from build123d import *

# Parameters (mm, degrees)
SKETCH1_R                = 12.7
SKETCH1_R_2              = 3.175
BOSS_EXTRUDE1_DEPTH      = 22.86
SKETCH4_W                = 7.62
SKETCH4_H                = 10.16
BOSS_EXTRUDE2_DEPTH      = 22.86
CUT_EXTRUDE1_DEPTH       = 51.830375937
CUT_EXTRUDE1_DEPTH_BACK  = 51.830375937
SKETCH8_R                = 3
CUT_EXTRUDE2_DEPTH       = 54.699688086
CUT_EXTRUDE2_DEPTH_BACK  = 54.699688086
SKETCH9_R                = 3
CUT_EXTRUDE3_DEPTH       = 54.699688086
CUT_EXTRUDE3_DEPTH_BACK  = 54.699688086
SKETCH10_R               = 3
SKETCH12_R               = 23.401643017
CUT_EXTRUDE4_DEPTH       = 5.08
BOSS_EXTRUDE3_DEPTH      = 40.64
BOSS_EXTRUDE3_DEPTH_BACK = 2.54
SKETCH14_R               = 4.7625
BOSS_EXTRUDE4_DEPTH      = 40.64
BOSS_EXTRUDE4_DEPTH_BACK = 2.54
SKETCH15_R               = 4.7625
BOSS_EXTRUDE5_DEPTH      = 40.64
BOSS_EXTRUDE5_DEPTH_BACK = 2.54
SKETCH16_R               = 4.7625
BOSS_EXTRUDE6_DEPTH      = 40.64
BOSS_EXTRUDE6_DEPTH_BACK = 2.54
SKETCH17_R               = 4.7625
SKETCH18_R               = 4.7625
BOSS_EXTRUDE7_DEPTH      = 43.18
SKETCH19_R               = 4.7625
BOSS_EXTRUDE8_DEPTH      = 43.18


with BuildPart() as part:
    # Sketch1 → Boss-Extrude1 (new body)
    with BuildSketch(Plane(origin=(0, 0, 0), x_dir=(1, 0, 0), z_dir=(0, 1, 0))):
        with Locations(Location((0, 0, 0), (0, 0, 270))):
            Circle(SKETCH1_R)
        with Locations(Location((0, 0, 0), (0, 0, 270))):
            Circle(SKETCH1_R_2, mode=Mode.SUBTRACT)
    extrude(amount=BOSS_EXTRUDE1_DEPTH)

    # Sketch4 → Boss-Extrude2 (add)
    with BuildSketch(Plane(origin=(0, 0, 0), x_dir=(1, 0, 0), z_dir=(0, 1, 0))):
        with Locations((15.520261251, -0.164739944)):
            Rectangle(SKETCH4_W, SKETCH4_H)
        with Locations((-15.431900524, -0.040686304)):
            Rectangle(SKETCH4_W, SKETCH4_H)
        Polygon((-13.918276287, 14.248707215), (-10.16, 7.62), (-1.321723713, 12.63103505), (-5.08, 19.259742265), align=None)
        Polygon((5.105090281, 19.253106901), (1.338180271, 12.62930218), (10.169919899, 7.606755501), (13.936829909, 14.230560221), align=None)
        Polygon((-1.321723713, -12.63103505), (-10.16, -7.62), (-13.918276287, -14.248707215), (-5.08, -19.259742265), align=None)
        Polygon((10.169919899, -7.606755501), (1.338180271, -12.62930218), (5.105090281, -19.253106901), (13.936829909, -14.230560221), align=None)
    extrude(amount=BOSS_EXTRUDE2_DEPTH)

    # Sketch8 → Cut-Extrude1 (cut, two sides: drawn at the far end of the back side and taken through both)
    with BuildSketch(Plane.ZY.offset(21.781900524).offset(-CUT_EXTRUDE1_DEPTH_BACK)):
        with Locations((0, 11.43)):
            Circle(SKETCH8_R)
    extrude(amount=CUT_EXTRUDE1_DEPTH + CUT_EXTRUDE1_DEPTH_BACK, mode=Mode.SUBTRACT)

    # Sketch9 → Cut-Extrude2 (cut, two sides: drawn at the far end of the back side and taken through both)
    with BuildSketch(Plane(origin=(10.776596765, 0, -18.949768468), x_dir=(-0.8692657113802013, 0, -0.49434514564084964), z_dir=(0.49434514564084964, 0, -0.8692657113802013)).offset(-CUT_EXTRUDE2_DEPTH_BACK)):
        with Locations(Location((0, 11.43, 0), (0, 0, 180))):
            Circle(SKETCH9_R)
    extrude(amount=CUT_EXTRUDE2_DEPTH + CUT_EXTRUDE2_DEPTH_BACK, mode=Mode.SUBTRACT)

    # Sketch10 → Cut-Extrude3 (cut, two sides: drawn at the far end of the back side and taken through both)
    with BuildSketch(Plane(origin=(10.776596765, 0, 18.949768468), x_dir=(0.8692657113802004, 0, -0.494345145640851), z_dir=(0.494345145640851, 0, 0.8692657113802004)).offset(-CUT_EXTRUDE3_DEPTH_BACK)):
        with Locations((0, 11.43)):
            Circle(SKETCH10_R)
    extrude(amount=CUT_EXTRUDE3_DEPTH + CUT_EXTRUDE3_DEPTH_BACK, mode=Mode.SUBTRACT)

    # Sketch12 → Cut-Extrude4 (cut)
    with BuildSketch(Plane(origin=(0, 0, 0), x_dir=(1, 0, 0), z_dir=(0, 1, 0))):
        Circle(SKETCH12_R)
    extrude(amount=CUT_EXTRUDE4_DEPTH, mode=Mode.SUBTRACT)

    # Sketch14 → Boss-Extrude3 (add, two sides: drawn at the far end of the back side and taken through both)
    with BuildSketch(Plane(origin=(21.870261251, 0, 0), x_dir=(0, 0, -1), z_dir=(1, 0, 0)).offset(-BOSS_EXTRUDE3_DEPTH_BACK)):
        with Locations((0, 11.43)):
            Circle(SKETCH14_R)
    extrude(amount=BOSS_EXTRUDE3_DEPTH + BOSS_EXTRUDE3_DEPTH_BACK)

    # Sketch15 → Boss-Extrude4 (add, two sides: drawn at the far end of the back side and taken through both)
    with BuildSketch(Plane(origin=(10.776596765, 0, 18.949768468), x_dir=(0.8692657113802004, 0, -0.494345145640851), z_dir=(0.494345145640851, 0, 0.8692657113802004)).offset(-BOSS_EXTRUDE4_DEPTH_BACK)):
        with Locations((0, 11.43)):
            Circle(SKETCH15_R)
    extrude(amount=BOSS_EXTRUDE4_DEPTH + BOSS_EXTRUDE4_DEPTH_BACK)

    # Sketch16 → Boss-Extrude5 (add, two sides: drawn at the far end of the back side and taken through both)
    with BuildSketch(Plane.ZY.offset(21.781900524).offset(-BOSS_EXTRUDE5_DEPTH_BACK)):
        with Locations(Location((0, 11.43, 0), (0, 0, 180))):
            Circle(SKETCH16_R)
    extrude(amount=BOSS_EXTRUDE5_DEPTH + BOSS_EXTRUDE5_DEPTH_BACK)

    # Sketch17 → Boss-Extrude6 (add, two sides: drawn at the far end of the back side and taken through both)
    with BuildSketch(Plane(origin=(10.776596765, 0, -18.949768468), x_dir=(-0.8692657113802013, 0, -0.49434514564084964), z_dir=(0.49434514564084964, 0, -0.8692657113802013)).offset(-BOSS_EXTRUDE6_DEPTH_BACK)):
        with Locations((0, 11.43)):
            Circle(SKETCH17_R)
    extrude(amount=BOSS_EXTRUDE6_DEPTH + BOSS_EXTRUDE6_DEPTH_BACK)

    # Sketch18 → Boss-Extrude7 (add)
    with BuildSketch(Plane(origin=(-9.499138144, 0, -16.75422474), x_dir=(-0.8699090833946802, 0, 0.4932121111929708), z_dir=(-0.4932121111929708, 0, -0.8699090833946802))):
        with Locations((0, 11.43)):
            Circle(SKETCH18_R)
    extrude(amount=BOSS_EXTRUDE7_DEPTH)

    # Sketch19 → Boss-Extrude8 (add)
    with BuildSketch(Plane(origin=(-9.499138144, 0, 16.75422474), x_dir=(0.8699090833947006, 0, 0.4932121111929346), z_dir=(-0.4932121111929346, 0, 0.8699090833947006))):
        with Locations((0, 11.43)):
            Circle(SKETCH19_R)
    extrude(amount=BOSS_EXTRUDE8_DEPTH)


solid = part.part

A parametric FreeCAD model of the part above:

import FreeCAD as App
import Part
import Sketcher
from FreeCAD import Vector
Q = App.Units.Quantity


def add_polygon(sketch, points):
    """Adds a closed chain of lines whose ends are joined by coincident constraints."""
    first, n = sketch.GeometryCount, len(points)
    for a, b in zip(points, points[1:] + points[:1]):
        sketch.addGeometry(Part.LineSegment(App.Vector(*a, 0), App.Vector(*b, 0)), False)
    for i in range(n):
        sketch.addConstraint(Sketcher.Constraint("Coincident", first + i, 2, first + (i + 1) % n, 1))

doc = App.newDocument("Part")
body = doc.addObject("PartDesign::Body", "Body")

# Sketch on XZ plane
sketch1 = body.newObject("Sketcher::SketchObject", "Sketch")
sketch1.AttachmentSupport = (doc.getObject("XZ_Plane"), [""])
sketch1.MapMode = "FlatFace"
sketch1.addGeometry(Part.Circle(Vector(0, 0, 0), Vector(0, 0, 1), 12.7), False)
sketch1.addGeometry(Part.Circle(Vector(0, 0, 0), Vector(0, 0, 1), 3.2), False)
sketch1.addConstraint(Sketcher.Constraint("Coincident", 0, 3, -1, 1))
sketch1.addConstraint(Sketcher.Constraint("Coincident", 1, 3, -1, 1))
sketch1.addConstraint(Sketcher.Constraint("Diameter", 0, Q("1 in")))
sketch1.addConstraint(Sketcher.Constraint("Diameter", 1, Q("0.25 in")))
pad1 = body.newObject("PartDesign::Pad", "Pad")
pad1.Profile = sketch1
pad1.Length = Q("0.9 in")
pad1.Reversed = True

# Sketch on XZ plane
sketch2 = body.newObject("Sketcher::SketchObject", "Sketch001")
sketch2.AttachmentSupport = (doc.getObject("XZ_Plane"), [""])
sketch2.MapMode = "FlatFace"
add_polygon(sketch2, [(12, -5), (12, 5), (19, 5), (19, -5)])  # lines 0-3
add_polygon(sketch2, [(-19, -5), (-19, 5), (-12, 5), (-12, -5)])  # lines 4-7
add_polygon(sketch2, [(-14, -14), (-10, -8), (-1, -13), (-5, -19)])  # lines 8-11
add_polygon(sketch2, [(5, -19), (1, -13), (10, -8), (14, -14)])  # lines 12-15
add_polygon(sketch2, [(-1, 13), (-10, 8), (-14, 14), (-5, 19)])  # lines 16-19
add_polygon(sketch2, [(10, 8), (1, 13), (5, 19), (14, 14)])  # lines 20-23
sketch2.addConstraint(Sketcher.Constraint("Vertical", 0))
sketch2.addConstraint(Sketcher.Constraint("Horizontal", 1))
sketch2.addConstraint(Sketcher.Constraint("Vertical", 2))
sketch2.addConstraint(Sketcher.Constraint("Horizontal", 3))
sketch2.addConstraint(Sketcher.Constraint("Vertical", 4))
sketch2.addConstraint(Sketcher.Constraint("Horizontal", 5))
sketch2.addConstraint(Sketcher.Constraint("Vertical", 6))
sketch2.addConstraint(Sketcher.Constraint("Horizontal", 7))
sketch2.addConstraint(Sketcher.Constraint("Symmetric", 8, 2, 16, 2, -1))
sketch2.addConstraint(Sketcher.Constraint("Symmetric", 11, 2, 17, 2, -1))
sketch2.addConstraint(Sketcher.Constraint("Symmetric", 10, 2, 18, 2, -1))
sketch2.addConstraint(Sketcher.Constraint("Symmetric", 9, 2, 19, 2, -1))
sketch2.addConstraint(Sketcher.Constraint("Symmetric", 12, 2, 20, 2, -1))
sketch2.addConstraint(Sketcher.Constraint("Symmetric", 15, 2, 21, 2, -1))
sketch2.addConstraint(Sketcher.Constraint("Symmetric", 14, 2, 22, 2, -1))
sketch2.addConstraint(Sketcher.Constraint("Symmetric", 13, 2, 23, 2, -1))
sketch2.addConstraint(Sketcher.Constraint("Perpendicular", 8, 9))
sketch2.addConstraint(Sketcher.Constraint("Perpendicular", 9, 10))
sketch2.addConstraint(Sketcher.Constraint("Perpendicular", 10, 11))
sketch2.addConstraint(Sketcher.Constraint("Perpendicular", 12, 13))
sketch2.addConstraint(Sketcher.Constraint("Perpendicular", 13, 14))
sketch2.addConstraint(Sketcher.Constraint("Perpendicular", 14, 15))
sketch2.addConstraint(Sketcher.Constraint("Equal", 3, 5))
sketch2.addConstraint(Sketcher.Constraint("Equal", 2, 4))
sketch2.addConstraint(Sketcher.Constraint("Equal", 10, 12))
sketch2.addConstraint(Sketcher.Constraint("Equal", 11, 13))
sketch2.addConstraint(Sketcher.Constraint("DistanceX", 1, 1, 1, 2, Q("0.3 in")))
sketch2.addConstraint(Sketcher.Constraint("DistanceY", 0, 1, 0, 2, Q("0.4 in")))
sketch2.addConstraint(Sketcher.Constraint("Distance", 8, Q("0.3 in")))
sketch2.addConstraint(Sketcher.Constraint("Distance", 9, Q("0.4 in")))
sketch2.addConstraint(Sketcher.Constraint("DistanceX", 8, 2, -1, 1, Q("0.4 in")))
sketch2.addConstraint(Sketcher.Constraint("DistanceY", 8, 2, -1, 1, Q("0.3 in")))
sketch2.addConstraint(Sketcher.Constraint("DistanceX", 10, 2, -1, 1, Q("0.2 in")))
sketch2.addConstraint(Sketcher.Constraint("DistanceX", 4, 2, -1, 1, Q("19.241901 mm")))
sketch2.addConstraint(Sketcher.Constraint("DistanceY", 14, 2, 3, 2, Q("9.3153 mm")))
sketch2.addConstraint(Sketcher.Constraint("DistanceX", -1, 1, 0, 2, Q("11.710261 mm")))
sketch2.addConstraint(Sketcher.Constraint("DistanceY", -1, 1, 0, 2, Q("5.24474 mm")))
sketch2.addConstraint(Sketcher.Constraint("DistanceX", -1, 1, 12, 2, Q("1.33818 mm")))
sketch2.addConstraint(Sketcher.Constraint("DistanceX", -1, 1, 13, 2, Q("10.16992 mm")))
sketch2.addConstraint(Sketcher.Constraint("DistanceY", 9, 2, 6, 2, Q("7.591721 mm")))
pad2 = body.newObject("PartDesign::Pad", "Pad001")
pad2.Profile = sketch2
pad2.Length = Q("0.9 in")
pad2.Reversed = True

# Sketch on YZ plane
sketch3 = body.newObject("Sketcher::SketchObject", "Sketch002")
sketch3.AttachmentSupport = (doc.getObject("YZ_Plane"), [""])
sketch3.MapMode = "FlatFace"
sketch3.AttachmentOffset = App.Placement(Vector(0, 0, -21.781901), App.Rotation())
sketch3.addGeometry(Part.Circle(Vector(11.4, 0, 0), Vector(0, 0, 1), 3), False)
sketch3.addConstraint(Sketcher.Constraint("PointOnObject", 0, 3, -1))
sketch3.addConstraint(Sketcher.Constraint("Diameter", 0, Q("6 mm")))
sketch3.addConstraint(Sketcher.Constraint("DistanceX", -1, 1, 0, 3, Q("0.45 in")))
pocket1 = body.newObject("PartDesign::Pocket", "Pocket")
pocket1.Profile = sketch3
pocket1.Type = "ThroughAll"
pocket1.Midplane = True

# Sketch on an angled plane
sketch4 = body.newObject("Sketcher::SketchObject", "Sketch003")
sketch4.Placement = App.Placement(Vector(10.776597, 0, -18.949768), App.Rotation(Vector(-0.869265711, 0, -0.494345146), Vector(0, 1, 0), Vector(0.494345146, 0, -0.869265711), "ZXY"))
sketch4.addGeometry(Part.Circle(Vector(0, 11.4, 0), Vector(0, 0, 1), 3), False)
sketch4.addConstraint(Sketcher.Constraint("PointOnObject", 0, 3, -2))
sketch4.addConstraint(Sketcher.Constraint("Diameter", 0, Q("6 mm")))
sketch4.addConstraint(Sketcher.Constraint("DistanceY", -1, 1, 0, 3, Q("0.45 in")))
pocket2 = body.newObject("PartDesign::Pocket", "Pocket001")
pocket2.Profile = sketch4
pocket2.Type = "ThroughAll"
pocket2.Midplane = True

# Sketch on an angled plane
sketch5 = body.newObject("Sketcher::SketchObject", "Sketch004")
sketch5.Placement = App.Placement(Vector(10.776597, 0, 18.949768), App.Rotation(Vector(0.869265711, 0, -0.494345146), Vector(0, 1, 0), Vector(0.494345146, 0, 0.869265711), "ZXY"))
sketch5.addGeometry(Part.Circle(Vector(0, 11.4, 0), Vector(0, 0, 1), 3), False)
sketch5.addConstraint(Sketcher.Constraint("PointOnObject", 0, 3, -2))
sketch5.addConstraint(Sketcher.Constraint("Diameter", 0, Q("6 mm")))
sketch5.addConstraint(Sketcher.Constraint("DistanceY", -1, 1, 0, 3, Q("0.45 in")))
pocket3 = body.newObject("PartDesign::Pocket", "Pocket002")
pocket3.Profile = sketch5
pocket3.Type = "ThroughAll"
pocket3.Midplane = True

# Sketch on XZ plane
sketch6 = body.newObject("Sketcher::SketchObject", "Sketch005")
sketch6.AttachmentSupport = (doc.getObject("XZ_Plane"), [""])
sketch6.MapMode = "FlatFace"
sketch6.addGeometry(Part.Circle(Vector(0, 0, 0), Vector(0, 0, 1), 23), False)
sketch6.addConstraint(Sketcher.Constraint("Coincident", 0, 3, -1, 1))
sketch6.addConstraint(Sketcher.Constraint("Diameter", 0, Q("46.803286 mm")))
pocket4 = body.newObject("PartDesign::Pocket", "Pocket003")
pocket4.Profile = sketch6
pocket4.Length = Q("0.2 in")

# Sketch on YZ plane
sketch7 = body.newObject("Sketcher::SketchObject", "Sketch006")
sketch7.AttachmentSupport = (doc.getObject("YZ_Plane"), [""])
sketch7.MapMode = "FlatFace"
sketch7.AttachmentOffset = App.Placement(Vector(0, 0, 21.870261), App.Rotation())
sketch7.addGeometry(Part.Circle(Vector(11.4, 0, 0), Vector(0, 0, 1), 4.8), False)
sketch7.addConstraint(Sketcher.Constraint("PointOnObject", 0, 3, -1))
sketch7.addConstraint(Sketcher.Constraint("Diameter", 0, Q("0.375 in")))
sketch7.addConstraint(Sketcher.Constraint("DistanceX", -1, 1, 0, 3, Q("0.45 in")))
pad3 = body.newObject("PartDesign::Pad", "Pad002")
pad3.Profile = sketch7
pad3.Type = "TwoLengths"
pad3.Length = Q("1.6 in")
pad3.Length2 = Q("0.1 in")

# Sketch on an angled plane
sketch8 = body.newObject("Sketcher::SketchObject", "Sketch007")
sketch8.Placement = App.Placement(Vector(10.776597, 0, 18.949768), App.Rotation(Vector(0.869265711, 0, -0.494345146), Vector(0, 1, 0), Vector(0.494345146, 0, 0.869265711), "ZXY"))
sketch8.addGeometry(Part.Circle(Vector(0, 11.4, 0), Vector(0, 0, 1), 4.8), False)
sketch8.addConstraint(Sketcher.Constraint("PointOnObject", 0, 3, -2))
sketch8.addConstraint(Sketcher.Constraint("Diameter", 0, Q("0.375 in")))
sketch8.addConstraint(Sketcher.Constraint("DistanceY", -1, 1, 0, 3, Q("0.45 in")))
pad4 = body.newObject("PartDesign::Pad", "Pad003")
pad4.Profile = sketch8
pad4.Type = "TwoLengths"
pad4.Length = Q("1.6 in")
pad4.Length2 = Q("0.1 in")

# Sketch on YZ plane
sketch9 = body.newObject("Sketcher::SketchObject", "Sketch008")
sketch9.AttachmentSupport = (doc.getObject("YZ_Plane"), [""])
sketch9.MapMode = "FlatFace"
sketch9.AttachmentOffset = App.Placement(Vector(0, 0, -21.781901), App.Rotation())
sketch9.addGeometry(Part.Circle(Vector(11.4, 0, 0), Vector(0, 0, 1), 4.8), False)
sketch9.addConstraint(Sketcher.Constraint("PointOnObject", 0, 3, -1))
sketch9.addConstraint(Sketcher.Constraint("Diameter", 0, Q("0.375 in")))
sketch9.addConstraint(Sketcher.Constraint("DistanceX", -1, 1, 0, 3, Q("0.45 in")))
pad5 = body.newObject("PartDesign::Pad", "Pad004")
pad5.Profile = sketch9
pad5.Type = "TwoLengths"
pad5.Length = Q("1.6 in")
pad5.Length2 = Q("0.1 in")
pad5.Reversed = True

# Sketch on an angled plane
sketch10 = body.newObject("Sketcher::SketchObject", "Sketch009")
sketch10.Placement = App.Placement(Vector(10.776597, 0, -18.949768), App.Rotation(Vector(-0.869265711, 0, -0.494345146), Vector(0, 1, 0), Vector(0.494345146, 0, -0.869265711), "ZXY"))
sketch10.addGeometry(Part.Circle(Vector(0, 11.4, 0), Vector(0, 0, 1), 4.8), False)
sketch10.addConstraint(Sketcher.Constraint("PointOnObject", 0, 3, -2))
sketch10.addConstraint(Sketcher.Constraint("Diameter", 0, Q("0.375 in")))
sketch10.addConstraint(Sketcher.Constraint("DistanceY", -1, 1, 0, 3, Q("0.45 in")))
pad6 = body.newObject("PartDesign::Pad", "Pad005")
pad6.Profile = sketch10
pad6.Type = "TwoLengths"
pad6.Length = Q("1.6 in")
pad6.Length2 = Q("0.1 in")

# Sketch on an angled plane
sketch11 = body.newObject("Sketcher::SketchObject", "Sketch010")
sketch11.Placement = App.Placement(Vector(-9.499138, 0, -16.754225), App.Rotation(Vector(-0.869909083, 0, 0.493212111), Vector(0, 0.999999999, 0), Vector(-0.493212111, 0, -0.869909083), "ZXY"))
sketch11.addGeometry(Part.Circle(Vector(0, 11.4, 0), Vector(0, 0, 1), 4.8), False)
sketch11.addConstraint(Sketcher.Constraint("PointOnObject", 0, 3, -2))
sketch11.addConstraint(Sketcher.Constraint("Diameter", 0, Q("0.375 in")))
sketch11.addConstraint(Sketcher.Constraint("DistanceY", -1, 1, 0, 3, Q("0.45 in")))
pad7 = body.newObject("PartDesign::Pad", "Pad006")
pad7.Profile = sketch11
pad7.Length = Q("1.7 in")

# Sketch on an angled plane
sketch12 = body.newObject("Sketcher::SketchObject", "Sketch011")
sketch12.Placement = App.Placement(Vector(-9.499138, 0, 16.754225), App.Rotation(Vector(0.869909083, 0, 0.493212111), Vector(0, 0.999999999, 0), Vector(-0.493212111, 0, 0.869909083), "ZXY"))
sketch12.addGeometry(Part.Circle(Vector(0, 11.4, 0), Vector(0, 0, 1), 4.8), False)
sketch12.addConstraint(Sketcher.Constraint("PointOnObject", 0, 3, -2))
sketch12.addConstraint(Sketcher.Constraint("Diameter", 0, Q("0.375 in")))
sketch12.addConstraint(Sketcher.Constraint("DistanceY", -1, 1, 0, 3, Q("0.45 in")))
pad8 = body.newObject("PartDesign::Pad", "Pad007")
pad8.Profile = sketch12
pad8.Length = Q("1.7 in")

doc.recompute()
